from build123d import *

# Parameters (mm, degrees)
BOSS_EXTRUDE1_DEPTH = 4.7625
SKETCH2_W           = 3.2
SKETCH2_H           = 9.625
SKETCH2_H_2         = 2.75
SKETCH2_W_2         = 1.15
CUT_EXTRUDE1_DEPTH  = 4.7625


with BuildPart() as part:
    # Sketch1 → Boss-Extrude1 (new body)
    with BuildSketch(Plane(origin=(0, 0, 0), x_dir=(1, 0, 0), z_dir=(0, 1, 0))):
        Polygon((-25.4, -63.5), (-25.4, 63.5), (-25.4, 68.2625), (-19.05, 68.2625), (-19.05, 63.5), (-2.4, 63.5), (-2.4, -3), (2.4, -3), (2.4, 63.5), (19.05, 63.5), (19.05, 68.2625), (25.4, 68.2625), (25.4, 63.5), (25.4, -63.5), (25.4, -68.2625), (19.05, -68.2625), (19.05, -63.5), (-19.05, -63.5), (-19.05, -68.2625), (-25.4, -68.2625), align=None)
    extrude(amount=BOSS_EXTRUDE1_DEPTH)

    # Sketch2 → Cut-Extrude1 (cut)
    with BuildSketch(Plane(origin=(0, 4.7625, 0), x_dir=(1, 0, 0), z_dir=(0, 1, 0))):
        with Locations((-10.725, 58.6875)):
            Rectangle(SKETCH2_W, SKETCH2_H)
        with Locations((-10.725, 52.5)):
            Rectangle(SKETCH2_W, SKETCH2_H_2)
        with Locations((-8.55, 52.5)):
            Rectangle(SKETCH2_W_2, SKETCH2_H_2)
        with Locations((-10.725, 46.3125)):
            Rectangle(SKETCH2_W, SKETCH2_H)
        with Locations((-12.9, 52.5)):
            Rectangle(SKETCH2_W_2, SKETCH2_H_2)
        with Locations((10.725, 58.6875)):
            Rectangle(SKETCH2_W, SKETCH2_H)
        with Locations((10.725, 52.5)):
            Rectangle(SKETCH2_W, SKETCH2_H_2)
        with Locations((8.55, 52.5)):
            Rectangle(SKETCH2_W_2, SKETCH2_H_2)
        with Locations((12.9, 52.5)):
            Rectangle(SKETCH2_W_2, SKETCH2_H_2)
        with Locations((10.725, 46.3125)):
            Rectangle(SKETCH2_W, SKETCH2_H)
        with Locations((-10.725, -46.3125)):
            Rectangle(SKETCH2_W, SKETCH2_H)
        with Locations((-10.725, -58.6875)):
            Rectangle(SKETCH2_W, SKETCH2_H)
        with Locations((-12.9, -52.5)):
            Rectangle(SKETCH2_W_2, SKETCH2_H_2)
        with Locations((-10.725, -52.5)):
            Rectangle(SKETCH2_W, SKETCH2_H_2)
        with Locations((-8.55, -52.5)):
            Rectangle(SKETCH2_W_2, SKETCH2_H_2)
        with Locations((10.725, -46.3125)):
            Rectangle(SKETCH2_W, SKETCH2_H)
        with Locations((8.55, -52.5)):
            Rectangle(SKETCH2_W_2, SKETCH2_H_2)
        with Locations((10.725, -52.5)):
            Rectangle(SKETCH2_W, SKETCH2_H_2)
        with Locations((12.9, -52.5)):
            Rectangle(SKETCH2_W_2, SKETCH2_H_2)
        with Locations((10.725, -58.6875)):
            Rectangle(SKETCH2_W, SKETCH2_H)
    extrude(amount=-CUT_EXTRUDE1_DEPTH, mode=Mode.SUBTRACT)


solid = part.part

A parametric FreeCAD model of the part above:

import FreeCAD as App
import Part
import Sketcher

V = App.Vector
Q = App.Units.Quantity

doc = App.newDocument("Part")
body = doc.addObject("PartDesign::Body", "Body")

sketch1 = body.newObject("Sketcher::SketchObject", "Sketch")
sketch1.AttachmentSupport = (doc.getObject("XZ_Plane"), [""])
sketch1.MapMode = "FlatFace"
sketch1.addGeometry([
    Part.LineSegment(V(-25.4, -68.2625, 0), V(-25.4, 68.2625, 0)),
    Part.LineSegment(V(-25.4, 68.2625, 0), V(-19.05, 68.2625, 0)),
    Part.LineSegment(V(-19.05, 68.2625, 0), V(-19.05, 63.5, 0)),
    Part.LineSegment(V(-19.05, 63.5, 0), V(19.05, 63.5, 0)),
    Part.LineSegment(V(19.05, 63.5, 0), V(19.05, 68.2625, 0)),
    Part.LineSegment(V(19.05, 68.2625, 0), V(25.4, 68.2625, 0)),
    Part.LineSegment(V(25.4, 68.2625, 0), V(25.4, -68.2625, 0)),
    Part.LineSegment(V(25.4, -68.2625, 0), V(19.05, -68.2625, 0)),
    Part.LineSegment(V(19.05, -68.2625, 0), V(19.05, -63.5, 0)),
    Part.LineSegment(V(19.05, -63.5, 0), V(2.4, -63.5, 0)),
    Part.LineSegment(V(2.4, -63.5, 0), V(2.4, 3, 0)),
    Part.LineSegment(V(2.4, 3, 0), V(-2.4, 3, 0)),
    Part.LineSegment(V(-2.4, 3, 0), V(-2.4, -63.5, 0)),
    Part.LineSegment(V(-2.4, -63.5, 0), V(-19.05, -63.5, 0)),
    Part.LineSegment(V(-19.05, -63.5, 0), V(-19.05, -68.2625, 0)),
    Part.LineSegment(V(-19.05, -68.2625, 0), V(-25.4, -68.2625, 0)),
], False)
sketch1.addConstraint([
    Sketcher.Constraint("Coincident", 0, 2, 1, 1),
    Sketcher.Constraint("Coincident", 1, 2, 2, 1),
    Sketcher.Constraint("Coincident", 2, 2, 3, 1),
    Sketcher.Constraint("Coincident", 3, 2, 4, 1),
    Sketcher.Constraint("Coincident", 4, 2, 5, 1),
    Sketcher.Constraint("Coincident", 5, 2, 6, 1),
    Sketcher.Constraint("Coincident", 6, 2, 7, 1),
    Sketcher.Constraint("Coincident", 7, 2, 8, 1),
    Sketcher.Constraint("Coincident", 8, 2, 9, 1),
    Sketcher.Constraint("Coincident", 9, 2, 10, 1),
    Sketcher.Constraint("Coincident", 10, 2, 11, 1),
    Sketcher.Constraint("Coincident", 11, 2, 12, 1),
    Sketcher.Constraint("Coincident", 12, 2, 13, 1),
    Sketcher.Constraint("Coincident", 13, 2, 14, 1),
    Sketcher.Constraint("Coincident", 14, 2, 15, 1),
    Sketcher.Constraint("Coincident", 15, 2, 0, 1),
    Sketcher.Constraint("Vertical", 0),
    Sketcher.Constraint("Horizontal", 1),
    Sketcher.Constraint("Vertical", 2),
    Sketcher.Constraint("Horizontal", 3),
    Sketcher.Constraint("Vertical", 4),
    Sketcher.Constraint("Horizontal", 5),
    Sketcher.Constraint("Vertical", 6),
    Sketcher.Constraint("Horizontal", 7),
    Sketcher.Constraint("Vertical", 8),
    Sketcher.Constraint("Horizontal", 9),
    Sketcher.Constraint("Vertical", 10),
    Sketcher.Constraint("Horizontal", 11),
    Sketcher.Constraint("Vertical", 12),
    Sketcher.Constraint("Horizontal", 13),
    Sketcher.Constraint("Vertical", 14),
    Sketcher.Constraint("Horizontal", 15),
    Sketcher.Constraint("Symmetric", 0, 2, 6, 2, -1, 1),
    Sketcher.Constraint("Symmetric", 2, 2, 8, 2, -1, 1),
    Sketcher.Constraint("Symmetric", 3, 2, 13, 2, -1, 1),
    Sketcher.Constraint("Symmetric", 1, 2, 4, 2, -2),
    Sketcher.Constraint("Horizontal", 7, 2, 14, 2),
    Sketcher.Constraint("Equal", 9, 13),
    Sketcher.Constraint("DistanceX", 3, 1, 3, 2, Q("1.5 in")),
    Sketcher.Constraint("DistanceX", 0, 2, -1, 1, Q("1 in")),
    Sketcher.Constraint("DistanceY", 8, 2, 3, 2, Q("5 in")),
    Sketcher.Constraint("DistanceY", 0, 1, 0, 2, Q("5.375 in")),
    Sketcher.Constraint("DistanceX", 9, 2, 9, 1, 16.65),
    Sketcher.Constraint("DistanceY", 10, 1, 10, 2, 66.5),
])
pad1 = body.newObject("PartDesign::Pad", "Pad")
pad1.Profile = sketch1
pad1.Length = Q("0.1875 in")
pad1.Reversed = True

sketch2 = body.newObject("Sketcher::SketchObject", "Sketch001")
sketch2.AttachmentSupport = (doc.getObject("XZ_Plane"), [""])
sketch2.MapMode = "FlatFace"
sketch2.AttachmentOffset = App.Placement(V(0, 0, -0.1875 * 25.4), App.Rotation())
sketch2.addGeometry([
    Part.LineSegment(V(-12.325, -63.5, 0), V(-12.325, -53.875, 0)),
    Part.LineSegment(V(-12.325, -53.875, 0), V(-13.475, -53.875, 0)),
    Part.LineSegment(V(-13.475, -53.875, 0), V(-13.475, -51.125, 0)),
    Part.LineSegment(V(-13.475, -51.125, 0), V(-12.325, -51.125, 0)),
    Part.LineSegment(V(-12.325, -51.125, 0), V(-12.325, -41.5, 0)),
    Part.LineSegment(V(-12.325, -41.5, 0), V(-9.125, -41.5, 0)),
    Part.LineSegment(V(-9.125, -41.5, 0), V(-9.125, -51.125, 0)),
    Part.LineSegment(V(-9.125, -51.125, 0), V(-7.975, -51.125, 0)),
    Part.LineSegment(V(-7.975, -51.125, 0), V(-7.975, -53.875, 0)),
    Part.LineSegment(V(-7.975, -53.875, 0), V(-9.125, -53.875, 0)),
    Part.LineSegment(V(-9.125, -53.875, 0), V(-9.125, -63.5, 0)),
    Part.LineSegment(V(-9.125, -63.5, 0), V(-12.325, -63.5, 0)),
    Part.LineSegment(V(9.125, -63.5, 0), V(9.125, -53.875, 0)),
    Part.LineSegment(V(9.125, -53.875, 0), V(7.975, -53.875, 0)),
    Part.LineSegment(V(7.975, -53.875, 0), V(7.975, -51.125, 0)),
    Part.LineSegment(V(7.975, -51.125, 0), V(9.125, -51.125, 0)),
    Part.LineSegment(V(9.125, -51.125, 0), V(9.125, -41.5, 0)),
    Part.LineSegment(V(9.125, -41.5, 0), V(12.325, -41.5, 0)),
    Part.LineSegment(V(12.325, -41.5, 0), V(12.325, -51.125, 0)),
    Part.LineSegment(V(12.325, -51.125, 0), V(13.475, -51.125, 0)),
    Part.LineSegment(V(13.475, -51.125, 0), V(13.475, -53.875, 0)),
    Part.LineSegment(V(13.475, -53.875, 0), V(12.325, -53.875, 0)),
    Part.LineSegment(V(12.325, -53.875, 0), V(12.325, -63.5, 0)),
    Part.LineSegment(V(12.325, -63.5, 0), V(9.125, -63.5, 0)),
    Part.LineSegment(V(-12.325, 41.5, 0), V(-12.325, 51.125, 0)),
    Part.LineSegment(V(-12.325, 51.125, 0), V(-13.475, 51.125, 0)),
    Part.LineSegment(V(-13.475, 51.125, 0), V(-13.475, 53.875, 0)),
    Part.LineSegment(V(-13.475, 53.875, 0), V(-12.325, 53.875, 0)),
    Part.LineSegment(V(-12.325, 53.875, 0), V(-12.325, 63.5, 0)),
    Part.LineSegment(V(-12.325, 63.5, 0), V(-9.125, 63.5, 0)),
    Part.LineSegment(V(-9.125, 63.5, 0), V(-9.125, 53.875, 0)),
    Part.LineSegment(V(-9.125, 53.875, 0), V(-7.975, 53.875, 0)),
    Part.LineSegment(V(-7.975, 53.875, 0), V(-7.975, 51.125, 0)),
    Part.LineSegment(V(-7.975, 51.125, 0), V(-9.125, 51.125, 0)),
    Part.LineSegment(V(-9.125, 51.125, 0), V(-9.125, 41.5, 0)),
    Part.LineSegment(V(-9.125, 41.5, 0), V(-12.325, 41.5, 0)),
    Part.LineSegment(V(9.125, 41.5, 0), V(9.125, 51.125, 0)),
    Part.LineSegment(V(9.125, 51.125, 0), V(7.975, 51.125, 0)),
    Part.LineSegment(V(7.975, 51.125, 0), V(7.975, 53.875, 0)),
    Part.LineSegment(V(7.975, 53.875, 0), V(9.125, 53.875, 0)),
    Part.LineSegment(V(9.125, 53.875, 0), V(9.125, 63.5, 0)),
    Part.LineSegment(V(9.125, 63.5, 0), V(12.325, 63.5, 0)),
    Part.LineSegment(V(12.325, 63.5, 0), V(12.325, 53.875, 0)),
    Part.LineSegment(V(12.325, 53.875, 0), V(13.475, 53.875, 0)),
    Part.LineSegment(V(13.475, 53.875, 0), V(13.475, 51.125, 0)),
    Part.LineSegment(V(13.475, 51.125, 0), V(12.325, 51.125, 0)),
    Part.LineSegment(V(12.325, 51.125, 0), V(12.325, 41.5, 0)),
    Part.LineSegment(V(12.325, 41.5, 0), V(9.125, 41.5, 0)),
], False)
sketch2.addConstraint([
    Sketcher.Constraint("Coincident", 0, 2, 1, 1),
    Sketcher.Constraint("Coincident", 1, 2, 2, 1),
    Sketcher.Constraint("Coincident", 2, 2, 3, 1),
    Sketcher.Constraint("Coincident", 3, 2, 4, 1),
    Sketcher.Constraint("Coincident", 4, 2, 5, 1),
    Sketcher.Constraint("Coincident", 5, 2, 6, 1),
    Sketcher.Constraint("Coincident", 6, 2, 7, 1),
    Sketcher.Constraint("Coincident", 7, 2, 8, 1),
    Sketcher.Constraint("Coincident", 8, 2, 9, 1),
    Sketcher.Constraint("Coincident", 9, 2, 10, 1),
    Sketcher.Constraint("Coincident", 10, 2, 11, 1),
    Sketcher.Constraint("Coincident", 11, 2, 0, 1),
    Sketcher.Constraint("Coincident", 12, 2, 13, 1),
    Sketcher.Constraint("Coincident", 13, 2, 14, 1),
    Sketcher.Constraint("Coincident", 14, 2, 15, 1),
    Sketcher.Constraint("Coincident", 15, 2, 16, 1),
    Sketcher.Constraint("Coincident", 16, 2, 17, 1),
    Sketcher.Constraint("Coincident", 17, 2, 18, 1),
    Sketcher.Constraint("Coincident", 18, 2, 19, 1),
    Sketcher.Constraint("Coincident", 19, 2, 20, 1),
    Sketcher.Constraint("Coincident", 20, 2, 21, 1),
    Sketcher.Constraint("Coincident", 21, 2, 22, 1),
    Sketcher.Constraint("Coincident", 22, 2, 23, 1),
    Sketcher.Constraint("Coincident", 23, 2, 12, 1),
    Sketcher.Constraint("Coincident", 24, 2, 25, 1),
    Sketcher.Constraint("Coincident", 25, 2, 26, 1),
    Sketcher.Constraint("Coincident", 26, 2, 27, 1),
    Sketcher.Constraint("Coincident", 27, 2, 28, 1),
    Sketcher.Constraint("Coincident", 28, 2, 29, 1),
    Sketcher.Constraint("Coincident", 29, 2, 30, 1),
    Sketcher.Constraint("Coincident", 30, 2, 31, 1),
    Sketcher.Constraint("Coincident", 31, 2, 32, 1),
    Sketcher.Constraint("Coincident", 32, 2, 33, 1),
    Sketcher.Constraint("Coincident", 33, 2, 34, 1),
    Sketcher.Constraint("Coincident", 34, 2, 35, 1),
    Sketcher.Constraint("Coincident", 35, 2, 24, 1),
    Sketcher.Constraint("Coincident", 36, 2, 37, 1),
    Sketcher.Constraint("Coincident", 37, 2, 38, 1),
    Sketcher.Constraint("Coincident", 38, 2, 39, 1),
    Sketcher.Constraint("Coincident", 39, 2, 40, 1),
    Sketcher.Constraint("Coincident", 40, 2, 41, 1),
    Sketcher.Constraint("Coincident", 41, 2, 42, 1),
    Sketcher.Constraint("Coincident", 42, 2, 43, 1),
    Sketcher.Constraint("Coincident", 43, 2, 44, 1),
    Sketcher.Constraint("Coincident", 44, 2, 45, 1),
    Sketcher.Constraint("Coincident", 45, 2, 46, 1),
    Sketcher.Constraint("Coincident", 46, 2, 47, 1),
    Sketcher.Constraint("Coincident", 47, 2, 36, 1),
    Sketcher.Constraint("Vertical", 0),
    Sketcher.Constraint("Horizontal", 1),
    Sketcher.Constraint("Vertical", 2),
    Sketcher.Constraint("Horizontal", 3),
    Sketcher.Constraint("Vertical", 4),
    Sketcher.Constraint("Horizontal", 5),
    Sketcher.Constraint("Vertical", 6),
    Sketcher.Constraint("Horizontal", 7),
    Sketcher.Constraint("Vertical", 8),
    Sketcher.Constraint("Horizontal", 9),
    Sketcher.Constraint("Vertical", 10),
    Sketcher.Constraint("Horizontal", 11),
    Sketcher.Constraint("Vertical", 12),
    Sketcher.Constraint("Horizontal", 13),
    Sketcher.Constraint("Vertical", 14),
    Sketcher.Constraint("Horizontal", 15),
    Sketcher.Constraint("Vertical", 16),
    Sketcher.Constraint("Horizontal", 17),
    Sketcher.Constraint("Vertical", 18),
    Sketcher.Constraint("Horizontal", 19),
    Sketcher.Constraint("Vertical", 20),
    Sketcher.Constraint("Horizontal", 21),
    Sketcher.Constraint("Vertical", 22),
    Sketcher.Constraint("Horizontal", 23),
    Sketcher.Constraint("Vertical", 24),
    Sketcher.Constraint("Horizontal", 25),
    Sketcher.Constraint("Vertical", 26),
    Sketcher.Constraint("Horizontal", 27),
    Sketcher.Constraint("Vertical", 28),
    Sketcher.Constraint("Horizontal", 29),
    Sketcher.Constraint("Vertical", 30),
    Sketcher.Constraint("Horizontal", 31),
    Sketcher.Constraint("Vertical", 32),
    Sketcher.Constraint("Horizontal", 33),
    Sketcher.Constraint("Vertical", 34),
    Sketcher.Constraint("Horizontal", 35),
    Sketcher.Constraint("Vertical", 36),
    Sketcher.Constraint("Horizontal", 37),
    Sketcher.Constraint("Vertical", 38),
    Sketcher.Constraint("Horizontal", 39),
    Sketcher.Constraint("Vertical", 40),
    Sketcher.Constraint("Horizontal", 41),
    Sketcher.Constraint("Vertical", 42),
    Sketcher.Constraint("Horizontal", 43),
    Sketcher.Constraint("Vertical", 44),
    Sketcher.Constraint("Horizontal", 45),
    Sketcher.Constraint("Vertical", 46),
    Sketcher.Constraint("Horizontal", 47),
    Sketcher.Constraint("Symmetric", 18, 2, 24, 2, -1, 1),
    Sketcher.Constraint("Symmetric", 20, 2, 26, 2, -1, 1),
    Sketcher.Constraint("Symmetric", 22, 2, 28, 2, -1, 1),
    Sketcher.Constraint("Symmetric", 12, 2, 30, 2, -1, 1),
    Sketcher.Constraint("Symmetric", 14, 2, 32, 2, -1, 1),
    Sketcher.Constraint("Symmetric", 16, 2, 34, 2, -1, 1),
    Sketcher.Constraint("Symmetric", 6, 2, 36, 2, -1, 1),
    Sketcher.Constraint("Symmetric", 8, 2, 38, 2, -1, 1),
    Sketcher.Constraint("Symmetric", 10, 2, 40, 2, -1, 1),
    Sketcher.Constraint("Symmetric", 0, 2, 42, 2, -1, 1),
    Sketcher.Constraint("Symmetric", 2, 2, 44, 2, -1, 1),
    Sketcher.Constraint("Symmetric", 4, 2, 46, 2, -1, 1),
    Sketcher.Constraint("Symmetric", 9, 2, 12, 2, -2),
    Sketcher.Constraint("Symmetric", 7, 2, 14, 2, -2),
    Sketcher.Constraint("Symmetric", 5, 2, 16, 2, -2),
    Sketcher.Constraint("Symmetric", 3, 2, 18, 2, -2),
    Sketcher.Constraint("Symmetric", 1, 2, 20, 2, -2),
    Sketcher.Constraint("Symmetric", 11, 2, 22, 2, -2),
    Sketcher.Constraint("Horizontal", 3, 2, 6, 2),
    Sketcher.Constraint("Horizontal", 1, 2, 8, 2),
    Sketcher.Constraint("Vertical", 0, 2, 3, 2),
    Sketcher.Constraint("Vertical", 6, 2, 9, 2),
    Sketcher.Constraint("Equal", 3, 7),
    Sketcher.Constraint("Equal", 0, 4),
    Sketcher.Constraint("DistanceY", 10, 2, -1, 1, Q("2.5 in")),
    Sketcher.Constraint("DistanceX", 1, 2, 1, 1, 1.15),
    Sketcher.Constraint("DistanceX", 5, 1, 5, 2, 3.2),
    Sketcher.Constraint("DistanceY", 0, 1, 0, 2, 9.625),
    Sketcher.Constraint("DistanceY", 2, 1, 2, 2, 2.75),
    Sketcher.Constraint("DistanceX", 0, 2, -1, 1, 12.325),
])
pocket1 = body.newObject("PartDesign::Pocket", "Pocket")
pocket1.Profile = sketch2
pocket1.Length = Q("0.1875 in")
pocket1.Reversed = True

doc.recompute()
